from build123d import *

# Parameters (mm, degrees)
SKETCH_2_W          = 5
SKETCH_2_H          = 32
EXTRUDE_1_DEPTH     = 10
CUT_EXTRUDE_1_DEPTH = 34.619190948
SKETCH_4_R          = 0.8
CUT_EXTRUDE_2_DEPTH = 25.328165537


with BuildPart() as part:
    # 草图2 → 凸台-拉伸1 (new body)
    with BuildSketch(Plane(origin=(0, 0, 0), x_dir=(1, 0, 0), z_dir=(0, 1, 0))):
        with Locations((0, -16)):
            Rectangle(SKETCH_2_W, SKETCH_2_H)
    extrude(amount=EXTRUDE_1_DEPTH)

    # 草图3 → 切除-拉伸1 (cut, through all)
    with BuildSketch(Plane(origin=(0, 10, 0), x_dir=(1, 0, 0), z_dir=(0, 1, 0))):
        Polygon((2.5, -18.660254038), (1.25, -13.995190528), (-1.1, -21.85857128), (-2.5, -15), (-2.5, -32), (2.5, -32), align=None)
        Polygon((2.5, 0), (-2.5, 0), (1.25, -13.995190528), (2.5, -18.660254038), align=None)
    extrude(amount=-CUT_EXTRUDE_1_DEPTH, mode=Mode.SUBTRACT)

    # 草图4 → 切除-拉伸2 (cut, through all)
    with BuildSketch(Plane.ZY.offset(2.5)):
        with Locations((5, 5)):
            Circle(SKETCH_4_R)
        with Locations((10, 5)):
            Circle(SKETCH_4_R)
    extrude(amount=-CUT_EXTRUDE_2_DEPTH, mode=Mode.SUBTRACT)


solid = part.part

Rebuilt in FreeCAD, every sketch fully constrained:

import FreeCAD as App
import Part
import Sketcher

V = App.Vector
Q = App.Units.Quantity


def add_polygon(sketch, points):
    """Adds a closed chain of lines whose ends are joined by coincident constraints."""
    first, n = sketch.GeometryCount, len(points)
    for a, b in zip(points, points[1:] + points[:1]):
        sketch.addGeometry(Part.LineSegment(App.Vector(*a, 0), App.Vector(*b, 0)), False)
    for i in range(n):
        sketch.addConstraint(Sketcher.Constraint("Coincident", first + i, 2, first + (i + 1) % n, 1))

doc = App.newDocument("Part")
body = doc.addObject("PartDesign::Body", "Body")

sketch1 = doc.addObject("Sketcher::SketchObject", "Sketch")
body.addObject(sketch1)
sketch1.AttachmentSupport = (doc.XZ_Plane, [""])
sketch1.MapMode = "FlatFace"
add_polygon(sketch1, [(-2, 0), (-2, 32), (2, 32), (2, 0)])
sketch1.addConstraint([
    Sketcher.Constraint("Vertical", 0),
    Sketcher.Constraint("Horizontal", 1),
    Sketcher.Constraint("Vertical", 2),
    Sketcher.Constraint("Horizontal", 3),
    Sketcher.Constraint("Symmetric", 2, 2, 3, 2, -1, 1),
    Sketcher.Constraint("DistanceX", 1, 1, 1, 2, Q("5 mm")),
    Sketcher.Constraint("DistanceY", 0, 1, 0, 2, Q("32 mm")),
])
pad1 = doc.addObject("PartDesign::Pad", "Pad")
body.addObject(pad1)
pad1.Profile = sketch1
pad1.Length = 10
pad1.Reversed = True

sketch2 = doc.addObject("Sketcher::SketchObject", "Sketch001")
body.addObject(sketch2)
sketch2.AttachmentSupport = (doc.XZ_Plane, [""])
sketch2.MapMode = "FlatFace"
sketch2.AttachmentOffset = App.Placement(V(0, 0, -10), App.Rotation())
add_polygon(sketch2, [(1, 14), (-1, 22), (-2, 15), (-2, 32), (2, 32), (2, 0), (-2, 0)])
sketch2.addConstraint([
    Sketcher.Constraint("Vertical", 2),
    Sketcher.Constraint("Horizontal", 3),
    Sketcher.Constraint("Vertical", 4),
    Sketcher.Constraint("Horizontal", 5),
    Sketcher.Constraint("Symmetric", 4, 2, 5, 2, -1, 1),
    Sketcher.Constraint("Vertical", 2, 2, 5, 2),
    Sketcher.Constraint("DistanceX", 3, 1, 3, 2, Q("5 mm")),
    Sketcher.Constraint("DistanceY", 2, 1, 2, 2, Q("17 mm")),
    Sketcher.Constraint("DistanceY", 4, 2, 4, 1, Q("32 mm")),
    Sketcher.Constraint("Angle", 6, Q("75 deg")),
    Sketcher.Constraint("Distance", 1, Q("7 mm")),
    Sketcher.Constraint("DistanceX", 0, 2, -1, 1, Q("1.1 mm")),
    Sketcher.Constraint("DistanceX", -1, 1, 6, 2, Q("1.25 mm")),
])
pocket1 = doc.addObject("PartDesign::Pocket", "Pocket")
body.addObject(pocket1)
pocket1.Profile = sketch2
pocket1.Type = "ThroughAll"
pocket1.Reversed = True

sketch3 = doc.addObject("Sketcher::SketchObject", "Sketch002")
body.addObject(sketch3)
sketch3.AttachmentSupport = (doc.YZ_Plane, [""])
sketch3.MapMode = "FlatFace"
sketch3.AttachmentOffset = App.Placement(V(0, 0, -2.5), App.Rotation())
sketch3.addGeometry([
    Part.Circle(V(5, 5, 0), V(0, 0, 1), 0.8),
    Part.Circle(V(5, 10, 0), V(0, 0, 1), 0.8),
], False)
sketch3.addConstraint([
    Sketcher.Constraint("Equal", 0, 1),
    Sketcher.Constraint("Vertical", 0, 3, 1, 3),
    Sketcher.Constraint("Diameter", 0, Q("1.6 mm")),
    Sketcher.Constraint("DistanceX", -1, 1, 0, 3, Q("5 mm")),
    Sketcher.Constraint("DistanceY", -1, 1, 0, 3, Q("5 mm")),
    Sketcher.Constraint("DistanceY", -1, 1, 1, 3, Q("10 mm")),
])
pocket2 = doc.addObject("PartDesign::Pocket", "Pocket001")
body.addObject(pocket2)
pocket2.Profile = sketch3
pocket2.Type = "ThroughAll"
pocket2.Reversed = True

doc.recompute()
